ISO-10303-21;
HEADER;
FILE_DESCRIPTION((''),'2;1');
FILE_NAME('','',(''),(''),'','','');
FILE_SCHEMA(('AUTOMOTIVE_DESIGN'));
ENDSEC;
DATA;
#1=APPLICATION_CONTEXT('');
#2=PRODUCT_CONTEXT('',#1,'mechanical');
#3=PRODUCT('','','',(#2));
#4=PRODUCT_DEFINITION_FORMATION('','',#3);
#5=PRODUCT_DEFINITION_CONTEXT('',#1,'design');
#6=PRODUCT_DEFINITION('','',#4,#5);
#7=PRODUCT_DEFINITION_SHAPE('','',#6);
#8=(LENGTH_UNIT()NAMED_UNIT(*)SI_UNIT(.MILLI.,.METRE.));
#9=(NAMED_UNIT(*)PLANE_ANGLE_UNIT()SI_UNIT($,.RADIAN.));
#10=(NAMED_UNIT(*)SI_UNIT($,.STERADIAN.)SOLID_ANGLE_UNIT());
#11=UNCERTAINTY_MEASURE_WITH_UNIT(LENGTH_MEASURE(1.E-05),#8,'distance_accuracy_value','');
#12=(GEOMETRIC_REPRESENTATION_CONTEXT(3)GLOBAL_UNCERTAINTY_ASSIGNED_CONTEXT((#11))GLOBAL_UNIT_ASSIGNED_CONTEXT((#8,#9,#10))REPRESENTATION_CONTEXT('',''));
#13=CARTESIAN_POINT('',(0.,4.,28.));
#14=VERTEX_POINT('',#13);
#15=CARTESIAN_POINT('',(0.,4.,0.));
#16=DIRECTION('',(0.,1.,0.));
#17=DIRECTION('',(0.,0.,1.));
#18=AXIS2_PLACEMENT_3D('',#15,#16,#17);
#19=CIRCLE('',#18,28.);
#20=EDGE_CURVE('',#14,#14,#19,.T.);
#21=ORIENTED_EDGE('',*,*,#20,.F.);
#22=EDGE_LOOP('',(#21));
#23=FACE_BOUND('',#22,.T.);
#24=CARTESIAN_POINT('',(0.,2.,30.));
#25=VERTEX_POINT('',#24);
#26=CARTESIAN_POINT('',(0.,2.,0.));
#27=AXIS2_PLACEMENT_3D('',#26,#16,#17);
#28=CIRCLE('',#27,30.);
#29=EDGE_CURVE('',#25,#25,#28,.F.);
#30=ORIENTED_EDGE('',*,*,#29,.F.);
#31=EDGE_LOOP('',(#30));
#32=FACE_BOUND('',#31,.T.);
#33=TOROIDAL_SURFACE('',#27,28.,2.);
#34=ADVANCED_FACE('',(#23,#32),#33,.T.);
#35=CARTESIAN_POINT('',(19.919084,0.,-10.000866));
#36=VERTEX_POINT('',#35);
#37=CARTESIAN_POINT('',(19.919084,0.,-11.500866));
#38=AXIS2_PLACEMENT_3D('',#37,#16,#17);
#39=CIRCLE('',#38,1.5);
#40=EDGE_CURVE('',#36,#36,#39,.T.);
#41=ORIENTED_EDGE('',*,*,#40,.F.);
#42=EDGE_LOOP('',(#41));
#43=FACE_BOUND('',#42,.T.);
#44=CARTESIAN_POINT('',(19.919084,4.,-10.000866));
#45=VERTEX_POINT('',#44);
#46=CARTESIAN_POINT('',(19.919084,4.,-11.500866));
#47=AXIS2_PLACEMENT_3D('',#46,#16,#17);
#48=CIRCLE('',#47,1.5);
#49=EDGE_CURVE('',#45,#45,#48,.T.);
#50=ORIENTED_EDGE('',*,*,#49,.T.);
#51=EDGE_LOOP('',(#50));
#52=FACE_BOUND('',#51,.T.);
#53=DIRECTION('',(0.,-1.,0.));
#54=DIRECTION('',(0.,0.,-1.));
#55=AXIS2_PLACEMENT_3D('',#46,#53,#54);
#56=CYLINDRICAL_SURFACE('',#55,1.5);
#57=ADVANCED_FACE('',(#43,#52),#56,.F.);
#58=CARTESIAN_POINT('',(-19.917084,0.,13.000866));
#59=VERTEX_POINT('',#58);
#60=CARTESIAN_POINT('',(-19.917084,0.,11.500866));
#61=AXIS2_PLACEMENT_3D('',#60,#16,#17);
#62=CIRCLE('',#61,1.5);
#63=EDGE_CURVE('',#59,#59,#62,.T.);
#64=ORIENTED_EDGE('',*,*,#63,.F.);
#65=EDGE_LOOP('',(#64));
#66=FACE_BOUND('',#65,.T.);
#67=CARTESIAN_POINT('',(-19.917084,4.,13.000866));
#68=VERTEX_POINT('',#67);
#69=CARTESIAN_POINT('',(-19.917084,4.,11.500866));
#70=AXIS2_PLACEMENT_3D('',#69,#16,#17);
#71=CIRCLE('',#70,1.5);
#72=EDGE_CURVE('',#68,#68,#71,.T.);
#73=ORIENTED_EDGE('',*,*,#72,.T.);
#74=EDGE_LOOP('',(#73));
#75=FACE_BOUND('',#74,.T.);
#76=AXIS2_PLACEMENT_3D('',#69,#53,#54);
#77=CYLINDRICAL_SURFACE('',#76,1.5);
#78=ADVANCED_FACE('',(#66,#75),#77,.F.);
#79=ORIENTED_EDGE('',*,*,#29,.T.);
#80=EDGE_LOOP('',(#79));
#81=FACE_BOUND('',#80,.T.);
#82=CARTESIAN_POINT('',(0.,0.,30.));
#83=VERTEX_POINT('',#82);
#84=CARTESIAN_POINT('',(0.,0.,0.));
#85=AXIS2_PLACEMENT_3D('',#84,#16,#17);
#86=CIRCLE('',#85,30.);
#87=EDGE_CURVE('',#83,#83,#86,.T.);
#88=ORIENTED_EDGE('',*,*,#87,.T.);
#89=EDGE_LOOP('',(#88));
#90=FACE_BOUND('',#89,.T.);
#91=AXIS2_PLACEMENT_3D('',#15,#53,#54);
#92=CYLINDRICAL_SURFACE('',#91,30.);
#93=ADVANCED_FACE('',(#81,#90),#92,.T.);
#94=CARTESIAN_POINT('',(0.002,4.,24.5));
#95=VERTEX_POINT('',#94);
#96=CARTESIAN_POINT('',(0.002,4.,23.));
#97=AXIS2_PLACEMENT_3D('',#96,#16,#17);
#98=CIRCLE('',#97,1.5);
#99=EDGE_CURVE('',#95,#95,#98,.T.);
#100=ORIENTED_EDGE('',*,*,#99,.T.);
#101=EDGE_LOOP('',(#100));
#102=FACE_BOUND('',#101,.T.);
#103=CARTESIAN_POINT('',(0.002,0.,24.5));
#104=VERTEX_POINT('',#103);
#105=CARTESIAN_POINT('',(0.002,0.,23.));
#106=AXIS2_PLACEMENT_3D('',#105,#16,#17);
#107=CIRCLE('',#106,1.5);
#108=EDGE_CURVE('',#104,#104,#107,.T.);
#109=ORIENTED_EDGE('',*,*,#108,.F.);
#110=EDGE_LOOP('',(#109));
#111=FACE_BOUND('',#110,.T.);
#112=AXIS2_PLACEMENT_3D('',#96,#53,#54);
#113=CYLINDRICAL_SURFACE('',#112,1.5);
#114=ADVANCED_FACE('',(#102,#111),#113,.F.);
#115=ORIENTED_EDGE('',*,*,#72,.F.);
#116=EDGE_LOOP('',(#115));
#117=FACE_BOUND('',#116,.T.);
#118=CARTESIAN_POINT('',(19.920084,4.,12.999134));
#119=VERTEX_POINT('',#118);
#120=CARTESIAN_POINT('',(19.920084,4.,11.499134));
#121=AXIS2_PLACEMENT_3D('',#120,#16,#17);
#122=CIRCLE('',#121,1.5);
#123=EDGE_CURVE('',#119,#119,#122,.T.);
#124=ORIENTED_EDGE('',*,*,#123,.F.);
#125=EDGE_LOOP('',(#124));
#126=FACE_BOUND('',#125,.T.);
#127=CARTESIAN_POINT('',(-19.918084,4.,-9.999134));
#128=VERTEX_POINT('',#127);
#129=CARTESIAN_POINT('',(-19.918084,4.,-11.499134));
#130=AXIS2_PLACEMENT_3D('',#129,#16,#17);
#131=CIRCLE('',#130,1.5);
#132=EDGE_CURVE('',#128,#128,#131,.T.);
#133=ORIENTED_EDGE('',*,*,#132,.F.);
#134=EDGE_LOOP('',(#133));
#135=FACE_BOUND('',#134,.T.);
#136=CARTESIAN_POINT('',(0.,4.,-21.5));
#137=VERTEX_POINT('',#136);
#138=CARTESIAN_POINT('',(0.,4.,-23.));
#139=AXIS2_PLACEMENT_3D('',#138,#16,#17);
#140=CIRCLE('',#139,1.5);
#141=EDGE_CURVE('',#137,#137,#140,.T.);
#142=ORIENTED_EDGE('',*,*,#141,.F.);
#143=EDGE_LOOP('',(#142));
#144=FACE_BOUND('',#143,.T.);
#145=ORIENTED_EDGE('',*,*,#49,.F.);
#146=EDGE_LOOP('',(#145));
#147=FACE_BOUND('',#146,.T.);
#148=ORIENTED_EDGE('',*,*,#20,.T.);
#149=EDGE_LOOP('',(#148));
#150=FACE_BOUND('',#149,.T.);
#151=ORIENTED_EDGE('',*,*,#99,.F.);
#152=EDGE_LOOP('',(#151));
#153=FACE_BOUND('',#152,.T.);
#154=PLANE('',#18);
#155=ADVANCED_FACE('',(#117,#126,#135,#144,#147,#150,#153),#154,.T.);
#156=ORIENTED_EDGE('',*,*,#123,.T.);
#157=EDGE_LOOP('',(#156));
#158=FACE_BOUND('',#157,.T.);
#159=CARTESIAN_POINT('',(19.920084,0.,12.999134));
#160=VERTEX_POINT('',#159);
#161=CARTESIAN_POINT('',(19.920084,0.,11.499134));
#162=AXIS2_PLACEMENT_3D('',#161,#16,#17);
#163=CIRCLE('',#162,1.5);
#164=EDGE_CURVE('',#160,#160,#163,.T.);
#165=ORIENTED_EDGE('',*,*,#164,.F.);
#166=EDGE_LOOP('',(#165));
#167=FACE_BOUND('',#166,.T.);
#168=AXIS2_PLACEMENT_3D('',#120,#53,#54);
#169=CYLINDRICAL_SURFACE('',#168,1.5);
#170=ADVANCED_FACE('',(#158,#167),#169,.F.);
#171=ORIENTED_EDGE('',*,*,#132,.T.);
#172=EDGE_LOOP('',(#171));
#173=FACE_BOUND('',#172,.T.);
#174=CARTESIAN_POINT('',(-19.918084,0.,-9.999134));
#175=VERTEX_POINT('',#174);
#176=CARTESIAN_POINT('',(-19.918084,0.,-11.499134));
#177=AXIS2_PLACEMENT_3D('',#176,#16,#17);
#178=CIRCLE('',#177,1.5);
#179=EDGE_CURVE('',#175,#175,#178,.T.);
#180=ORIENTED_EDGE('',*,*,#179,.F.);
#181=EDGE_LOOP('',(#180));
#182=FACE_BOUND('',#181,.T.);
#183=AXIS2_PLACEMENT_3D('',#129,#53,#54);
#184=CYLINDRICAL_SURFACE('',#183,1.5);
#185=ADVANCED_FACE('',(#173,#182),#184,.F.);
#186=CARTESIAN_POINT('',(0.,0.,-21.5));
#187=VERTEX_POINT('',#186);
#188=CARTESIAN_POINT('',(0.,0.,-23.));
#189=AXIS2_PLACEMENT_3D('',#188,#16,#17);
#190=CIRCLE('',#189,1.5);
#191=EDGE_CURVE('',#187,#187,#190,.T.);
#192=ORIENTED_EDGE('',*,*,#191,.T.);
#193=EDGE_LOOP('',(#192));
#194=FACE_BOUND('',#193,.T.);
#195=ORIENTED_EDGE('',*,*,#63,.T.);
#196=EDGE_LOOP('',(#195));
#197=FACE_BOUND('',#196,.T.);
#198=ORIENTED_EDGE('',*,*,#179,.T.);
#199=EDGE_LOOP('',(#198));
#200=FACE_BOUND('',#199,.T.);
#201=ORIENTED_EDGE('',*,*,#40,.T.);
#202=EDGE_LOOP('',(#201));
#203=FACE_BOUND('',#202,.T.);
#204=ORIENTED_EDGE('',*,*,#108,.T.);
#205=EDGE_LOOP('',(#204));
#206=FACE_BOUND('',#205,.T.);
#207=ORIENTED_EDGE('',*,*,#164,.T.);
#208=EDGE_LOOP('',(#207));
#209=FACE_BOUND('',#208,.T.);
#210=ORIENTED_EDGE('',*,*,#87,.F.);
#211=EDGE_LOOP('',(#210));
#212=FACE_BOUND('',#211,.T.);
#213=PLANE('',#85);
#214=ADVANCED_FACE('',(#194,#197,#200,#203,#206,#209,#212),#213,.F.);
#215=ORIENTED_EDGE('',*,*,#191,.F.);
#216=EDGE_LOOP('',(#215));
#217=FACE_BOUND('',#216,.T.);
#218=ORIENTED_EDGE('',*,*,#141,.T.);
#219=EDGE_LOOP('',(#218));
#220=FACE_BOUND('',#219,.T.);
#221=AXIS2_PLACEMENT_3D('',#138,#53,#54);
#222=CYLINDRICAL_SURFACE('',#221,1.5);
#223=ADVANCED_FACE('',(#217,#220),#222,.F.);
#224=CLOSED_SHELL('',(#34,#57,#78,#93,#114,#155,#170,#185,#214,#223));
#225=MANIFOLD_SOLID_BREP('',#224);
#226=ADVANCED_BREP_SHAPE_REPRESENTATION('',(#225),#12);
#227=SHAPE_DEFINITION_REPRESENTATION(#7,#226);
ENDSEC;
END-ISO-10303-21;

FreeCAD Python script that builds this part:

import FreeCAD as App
import Part
import Sketcher


def edges_at(feature, points):
    """Names of the edges that pass closest to the given points."""
    edges = feature.Shape.Edges
    near = lambda p: min(range(len(edges)), key=lambda i: edges[i].distToShape(Part.Vertex(*p))[0])
    return sorted({f"Edge{near(p) + 1}" for p in points})

doc = App.newDocument("Part")
body = doc.addObject("PartDesign::Body", "Body")

# Sketch on XZ plane
sketch1 = body.newObject("Sketcher::SketchObject", "Sketch")
sketch1.AttachmentSupport = (doc.getObject("XZ_Plane"), [""])
sketch1.MapMode = "FlatFace"
sketch1.addGeometry(Part.Circle(App.Vector(0, 0, 0), App.Vector(0, 0, 1), 30), False)
sketch1.addGeometry(Part.Circle(App.Vector(-19.9, -11.5, 0), App.Vector(0, 0, 1), 1.5), False)
sketch1.addGeometry(Part.Circle(App.Vector(0, -23, 0), App.Vector(0, 0, 1), 1.5), False)
sketch1.addGeometry(Part.Circle(App.Vector(-19.9, 11.5, 0), App.Vector(0, 0, 1), 1.5), False)
sketch1.addGeometry(Part.Circle(App.Vector(19.9, -11.5, 0), App.Vector(0, 0, 1), 1.5), False)
sketch1.addGeometry(Part.Circle(App.Vector(0, 23, 0), App.Vector(0, 0, 1), 1.5), False)
sketch1.addGeometry(Part.Circle(App.Vector(19.9, 11.5, 0), App.Vector(0, 0, 1), 1.5), False)
sketch1.addConstraint(Sketcher.Constraint("Coincident", 0, 3, -1, 1))
sketch1.addConstraint(Sketcher.Constraint("Equal", 1, 2))
sketch1.addConstraint(Sketcher.Constraint("Equal", 2, 3))
sketch1.addConstraint(Sketcher.Constraint("Equal", 3, 4))
sketch1.addConstraint(Sketcher.Constraint("Equal", 4, 5))
sketch1.addConstraint(Sketcher.Constraint("Equal", 5, 6))
sketch1.addConstraint(Sketcher.Constraint("PointOnObject", 2, 3, -2))
sketch1.addConstraint(Sketcher.Constraint("Diameter", 0, 60.0))
sketch1.addConstraint(Sketcher.Constraint("Diameter", 1, 3.0))
sketch1.addConstraint(Sketcher.Constraint("DistanceY", 2, 3, -1, 1, 23.0))
sketch1.addConstraint(Sketcher.Constraint("DistanceY", -1, 1, 5, 3, 23.0))
sketch1.addConstraint(Sketcher.Constraint("DistanceY", 1, 3, 3, 3, 23.0))
sketch1.addConstraint(Sketcher.Constraint("DistanceY", 4, 3, 6, 3, 23.0))
sketch1.addConstraint(Sketcher.Constraint("DistanceX", -1, 1, 5, 3, 0.002))
sketch1.addConstraint(Sketcher.Constraint("DistanceX", 1, 3, 3, 3, 0.001))
sketch1.addConstraint(Sketcher.Constraint("DistanceX", 4, 3, 6, 3, 0.001))
sketch1.addConstraint(Sketcher.Constraint("DistanceX", 1, 3, 4, 3, 39.837169))
sketch1.addConstraint(Sketcher.Constraint("DistanceX", 1, 3, -1, 1, 19.918084))
sketch1.addConstraint(Sketcher.Constraint("DistanceY", 1, 3, -1, 1, 11.499134))
sketch1.addConstraint(Sketcher.Constraint("DistanceY", 4, 3, -1, 1, 11.500866))
pad1 = body.newObject("PartDesign::Pad", "Pad")
pad1.Profile = sketch1
pad1.Length = 4
pad1.Reversed = True
doc.recompute()

fillet = body.newObject("PartDesign::Fillet", "Fillet")
fillet.Base = (pad1, edges_at(pad1, [(0, 4, -30)]))
fillet.Radius = 2

doc.recompute()
